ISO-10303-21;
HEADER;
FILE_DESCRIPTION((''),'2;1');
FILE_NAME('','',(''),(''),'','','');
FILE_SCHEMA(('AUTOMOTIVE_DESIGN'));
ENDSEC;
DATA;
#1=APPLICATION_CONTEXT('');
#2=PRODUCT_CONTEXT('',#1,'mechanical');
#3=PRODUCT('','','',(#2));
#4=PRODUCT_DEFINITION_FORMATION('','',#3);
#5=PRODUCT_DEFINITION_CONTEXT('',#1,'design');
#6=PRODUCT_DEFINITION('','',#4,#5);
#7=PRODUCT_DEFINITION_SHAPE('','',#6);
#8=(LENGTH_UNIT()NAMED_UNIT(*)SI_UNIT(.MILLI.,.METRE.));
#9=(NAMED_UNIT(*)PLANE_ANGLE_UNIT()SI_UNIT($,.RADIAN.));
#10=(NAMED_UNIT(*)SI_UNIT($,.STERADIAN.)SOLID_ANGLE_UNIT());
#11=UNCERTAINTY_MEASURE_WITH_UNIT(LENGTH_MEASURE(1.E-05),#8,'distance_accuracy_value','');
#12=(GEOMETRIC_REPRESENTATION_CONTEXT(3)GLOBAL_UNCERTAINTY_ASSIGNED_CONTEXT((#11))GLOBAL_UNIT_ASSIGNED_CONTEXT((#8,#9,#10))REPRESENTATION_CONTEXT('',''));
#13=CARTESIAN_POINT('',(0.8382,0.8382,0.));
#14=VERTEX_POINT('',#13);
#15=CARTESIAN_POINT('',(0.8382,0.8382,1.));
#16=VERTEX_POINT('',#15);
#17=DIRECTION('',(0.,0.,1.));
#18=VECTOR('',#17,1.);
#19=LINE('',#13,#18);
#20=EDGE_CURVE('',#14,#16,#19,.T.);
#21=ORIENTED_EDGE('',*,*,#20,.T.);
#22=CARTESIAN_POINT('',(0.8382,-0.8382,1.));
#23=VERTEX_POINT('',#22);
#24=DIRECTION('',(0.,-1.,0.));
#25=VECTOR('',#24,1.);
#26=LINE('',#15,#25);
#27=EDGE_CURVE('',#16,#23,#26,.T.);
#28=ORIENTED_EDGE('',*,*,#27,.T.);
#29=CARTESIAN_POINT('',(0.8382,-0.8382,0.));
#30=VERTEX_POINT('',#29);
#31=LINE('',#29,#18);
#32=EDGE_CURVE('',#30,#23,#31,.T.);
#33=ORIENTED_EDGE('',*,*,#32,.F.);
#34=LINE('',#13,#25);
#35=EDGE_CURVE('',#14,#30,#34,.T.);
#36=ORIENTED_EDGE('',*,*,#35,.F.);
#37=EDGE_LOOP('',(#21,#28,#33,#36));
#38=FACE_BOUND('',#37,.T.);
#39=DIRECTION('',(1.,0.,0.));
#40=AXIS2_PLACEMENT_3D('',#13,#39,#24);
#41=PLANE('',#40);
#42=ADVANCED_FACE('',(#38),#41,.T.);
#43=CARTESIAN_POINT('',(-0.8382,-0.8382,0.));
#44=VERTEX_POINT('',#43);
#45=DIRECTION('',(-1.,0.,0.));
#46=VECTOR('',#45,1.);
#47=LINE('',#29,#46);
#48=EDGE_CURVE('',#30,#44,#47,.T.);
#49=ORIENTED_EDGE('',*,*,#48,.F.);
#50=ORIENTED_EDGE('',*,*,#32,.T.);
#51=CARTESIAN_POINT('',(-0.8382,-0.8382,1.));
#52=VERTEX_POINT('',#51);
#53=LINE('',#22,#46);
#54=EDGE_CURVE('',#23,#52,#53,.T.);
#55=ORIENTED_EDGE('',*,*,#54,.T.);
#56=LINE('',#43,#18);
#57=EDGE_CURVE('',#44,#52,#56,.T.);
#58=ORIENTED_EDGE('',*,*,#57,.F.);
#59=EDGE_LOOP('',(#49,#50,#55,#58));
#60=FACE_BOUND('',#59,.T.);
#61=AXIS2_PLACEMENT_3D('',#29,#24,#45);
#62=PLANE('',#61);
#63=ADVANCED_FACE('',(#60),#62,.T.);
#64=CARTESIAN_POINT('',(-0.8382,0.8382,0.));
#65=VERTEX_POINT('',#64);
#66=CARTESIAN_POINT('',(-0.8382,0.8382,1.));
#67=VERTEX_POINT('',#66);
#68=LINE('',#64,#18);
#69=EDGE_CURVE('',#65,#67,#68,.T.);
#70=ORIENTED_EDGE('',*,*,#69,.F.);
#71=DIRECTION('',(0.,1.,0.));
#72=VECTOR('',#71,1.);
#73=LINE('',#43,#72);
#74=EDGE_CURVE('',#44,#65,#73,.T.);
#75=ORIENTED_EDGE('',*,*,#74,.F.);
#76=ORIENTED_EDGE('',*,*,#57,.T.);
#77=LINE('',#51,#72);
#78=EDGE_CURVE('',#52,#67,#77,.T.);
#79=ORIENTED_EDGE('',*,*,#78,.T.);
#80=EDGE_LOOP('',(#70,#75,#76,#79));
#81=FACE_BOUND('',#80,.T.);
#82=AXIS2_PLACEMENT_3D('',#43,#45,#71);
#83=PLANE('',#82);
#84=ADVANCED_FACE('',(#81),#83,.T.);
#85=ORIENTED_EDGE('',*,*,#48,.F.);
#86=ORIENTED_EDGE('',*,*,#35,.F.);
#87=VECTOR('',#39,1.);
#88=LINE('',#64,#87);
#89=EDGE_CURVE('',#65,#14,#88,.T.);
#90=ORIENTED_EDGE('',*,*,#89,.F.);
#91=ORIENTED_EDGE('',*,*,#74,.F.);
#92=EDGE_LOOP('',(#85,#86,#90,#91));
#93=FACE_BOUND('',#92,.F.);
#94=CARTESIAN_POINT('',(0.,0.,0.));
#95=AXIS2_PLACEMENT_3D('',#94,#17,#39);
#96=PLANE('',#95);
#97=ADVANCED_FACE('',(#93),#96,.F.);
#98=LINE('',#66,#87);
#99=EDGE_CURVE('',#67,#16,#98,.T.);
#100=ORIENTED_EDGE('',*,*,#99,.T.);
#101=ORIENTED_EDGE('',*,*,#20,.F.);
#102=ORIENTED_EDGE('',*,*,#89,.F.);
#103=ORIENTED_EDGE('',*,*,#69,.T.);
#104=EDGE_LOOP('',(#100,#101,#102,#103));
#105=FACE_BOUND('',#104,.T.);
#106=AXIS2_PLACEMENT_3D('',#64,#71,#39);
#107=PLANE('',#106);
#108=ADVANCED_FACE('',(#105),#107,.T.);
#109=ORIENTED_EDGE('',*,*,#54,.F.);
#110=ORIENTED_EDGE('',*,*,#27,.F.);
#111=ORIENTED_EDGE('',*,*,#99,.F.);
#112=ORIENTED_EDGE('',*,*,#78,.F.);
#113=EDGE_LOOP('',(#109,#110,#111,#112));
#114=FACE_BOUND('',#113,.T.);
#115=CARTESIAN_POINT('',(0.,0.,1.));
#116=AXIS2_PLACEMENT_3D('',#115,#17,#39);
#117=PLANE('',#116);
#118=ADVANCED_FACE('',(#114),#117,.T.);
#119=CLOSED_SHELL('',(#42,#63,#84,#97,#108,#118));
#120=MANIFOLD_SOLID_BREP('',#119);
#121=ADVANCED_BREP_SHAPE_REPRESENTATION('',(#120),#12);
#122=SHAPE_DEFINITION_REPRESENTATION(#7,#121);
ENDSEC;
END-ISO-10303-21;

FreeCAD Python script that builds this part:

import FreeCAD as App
import Part
import Sketcher
from FreeCAD import Vector


def add_polygon(sketch, points):
    """Adds a closed chain of lines whose ends are joined by coincident constraints."""
    first, n = sketch.GeometryCount, len(points)
    for a, b in zip(points, points[1:] + points[:1]):
        sketch.addGeometry(Part.LineSegment(App.Vector(*a, 0), App.Vector(*b, 0)), False)
    for i in range(n):
        sketch.addConstraint(Sketcher.Constraint("Coincident", first + i, 2, first + (i + 1) % n, 1))

doc = App.newDocument("Part")
params = doc.addObject("Spreadsheet::Sheet", "Params")
for row, (alias, value) in enumerate([
    ("pad1_length", "1 mm"),
], start=1):
    params.set(f"A{row}", alias)
    params.set(f"B{row}", "=" + value)
    params.setAlias(f"B{row}", alias)

body = doc.addObject("PartDesign::Body", "Body")

sketch1 = body.newObject("Sketcher::SketchObject", "Sketch")
sketch1.AttachmentSupport = (doc.getObject("XY_Plane"), [""])
sketch1.MapMode = "FlatFace"
add_polygon(sketch1, [(0.8, 0.8), (-0.8, 0.8), (-0.8, -0.8), (0.8, -0.8)])
sketch1.addConstraint(Sketcher.Constraint("Horizontal", 0))
sketch1.addConstraint(Sketcher.Constraint("Vertical", 1))
sketch1.addConstraint(Sketcher.Constraint("Horizontal", 2))
sketch1.addConstraint(Sketcher.Constraint("Vertical", 3))
sketch1.addConstraint(Sketcher.Constraint("Symmetric", 0, 2, 2, 2, -1, 1))
sketch1.addConstraint(Sketcher.Constraint("Equal", 2, 1))
sketch1.addConstraint(Sketcher.Constraint("DistanceX", 0, 2, 0, 1, 1.6764))
pad1 = body.newObject("PartDesign::Pad", "Pad")
pad1.Profile = sketch1
pad1.setExpression("Length", "Params.pad1_length")

doc.recompute()
